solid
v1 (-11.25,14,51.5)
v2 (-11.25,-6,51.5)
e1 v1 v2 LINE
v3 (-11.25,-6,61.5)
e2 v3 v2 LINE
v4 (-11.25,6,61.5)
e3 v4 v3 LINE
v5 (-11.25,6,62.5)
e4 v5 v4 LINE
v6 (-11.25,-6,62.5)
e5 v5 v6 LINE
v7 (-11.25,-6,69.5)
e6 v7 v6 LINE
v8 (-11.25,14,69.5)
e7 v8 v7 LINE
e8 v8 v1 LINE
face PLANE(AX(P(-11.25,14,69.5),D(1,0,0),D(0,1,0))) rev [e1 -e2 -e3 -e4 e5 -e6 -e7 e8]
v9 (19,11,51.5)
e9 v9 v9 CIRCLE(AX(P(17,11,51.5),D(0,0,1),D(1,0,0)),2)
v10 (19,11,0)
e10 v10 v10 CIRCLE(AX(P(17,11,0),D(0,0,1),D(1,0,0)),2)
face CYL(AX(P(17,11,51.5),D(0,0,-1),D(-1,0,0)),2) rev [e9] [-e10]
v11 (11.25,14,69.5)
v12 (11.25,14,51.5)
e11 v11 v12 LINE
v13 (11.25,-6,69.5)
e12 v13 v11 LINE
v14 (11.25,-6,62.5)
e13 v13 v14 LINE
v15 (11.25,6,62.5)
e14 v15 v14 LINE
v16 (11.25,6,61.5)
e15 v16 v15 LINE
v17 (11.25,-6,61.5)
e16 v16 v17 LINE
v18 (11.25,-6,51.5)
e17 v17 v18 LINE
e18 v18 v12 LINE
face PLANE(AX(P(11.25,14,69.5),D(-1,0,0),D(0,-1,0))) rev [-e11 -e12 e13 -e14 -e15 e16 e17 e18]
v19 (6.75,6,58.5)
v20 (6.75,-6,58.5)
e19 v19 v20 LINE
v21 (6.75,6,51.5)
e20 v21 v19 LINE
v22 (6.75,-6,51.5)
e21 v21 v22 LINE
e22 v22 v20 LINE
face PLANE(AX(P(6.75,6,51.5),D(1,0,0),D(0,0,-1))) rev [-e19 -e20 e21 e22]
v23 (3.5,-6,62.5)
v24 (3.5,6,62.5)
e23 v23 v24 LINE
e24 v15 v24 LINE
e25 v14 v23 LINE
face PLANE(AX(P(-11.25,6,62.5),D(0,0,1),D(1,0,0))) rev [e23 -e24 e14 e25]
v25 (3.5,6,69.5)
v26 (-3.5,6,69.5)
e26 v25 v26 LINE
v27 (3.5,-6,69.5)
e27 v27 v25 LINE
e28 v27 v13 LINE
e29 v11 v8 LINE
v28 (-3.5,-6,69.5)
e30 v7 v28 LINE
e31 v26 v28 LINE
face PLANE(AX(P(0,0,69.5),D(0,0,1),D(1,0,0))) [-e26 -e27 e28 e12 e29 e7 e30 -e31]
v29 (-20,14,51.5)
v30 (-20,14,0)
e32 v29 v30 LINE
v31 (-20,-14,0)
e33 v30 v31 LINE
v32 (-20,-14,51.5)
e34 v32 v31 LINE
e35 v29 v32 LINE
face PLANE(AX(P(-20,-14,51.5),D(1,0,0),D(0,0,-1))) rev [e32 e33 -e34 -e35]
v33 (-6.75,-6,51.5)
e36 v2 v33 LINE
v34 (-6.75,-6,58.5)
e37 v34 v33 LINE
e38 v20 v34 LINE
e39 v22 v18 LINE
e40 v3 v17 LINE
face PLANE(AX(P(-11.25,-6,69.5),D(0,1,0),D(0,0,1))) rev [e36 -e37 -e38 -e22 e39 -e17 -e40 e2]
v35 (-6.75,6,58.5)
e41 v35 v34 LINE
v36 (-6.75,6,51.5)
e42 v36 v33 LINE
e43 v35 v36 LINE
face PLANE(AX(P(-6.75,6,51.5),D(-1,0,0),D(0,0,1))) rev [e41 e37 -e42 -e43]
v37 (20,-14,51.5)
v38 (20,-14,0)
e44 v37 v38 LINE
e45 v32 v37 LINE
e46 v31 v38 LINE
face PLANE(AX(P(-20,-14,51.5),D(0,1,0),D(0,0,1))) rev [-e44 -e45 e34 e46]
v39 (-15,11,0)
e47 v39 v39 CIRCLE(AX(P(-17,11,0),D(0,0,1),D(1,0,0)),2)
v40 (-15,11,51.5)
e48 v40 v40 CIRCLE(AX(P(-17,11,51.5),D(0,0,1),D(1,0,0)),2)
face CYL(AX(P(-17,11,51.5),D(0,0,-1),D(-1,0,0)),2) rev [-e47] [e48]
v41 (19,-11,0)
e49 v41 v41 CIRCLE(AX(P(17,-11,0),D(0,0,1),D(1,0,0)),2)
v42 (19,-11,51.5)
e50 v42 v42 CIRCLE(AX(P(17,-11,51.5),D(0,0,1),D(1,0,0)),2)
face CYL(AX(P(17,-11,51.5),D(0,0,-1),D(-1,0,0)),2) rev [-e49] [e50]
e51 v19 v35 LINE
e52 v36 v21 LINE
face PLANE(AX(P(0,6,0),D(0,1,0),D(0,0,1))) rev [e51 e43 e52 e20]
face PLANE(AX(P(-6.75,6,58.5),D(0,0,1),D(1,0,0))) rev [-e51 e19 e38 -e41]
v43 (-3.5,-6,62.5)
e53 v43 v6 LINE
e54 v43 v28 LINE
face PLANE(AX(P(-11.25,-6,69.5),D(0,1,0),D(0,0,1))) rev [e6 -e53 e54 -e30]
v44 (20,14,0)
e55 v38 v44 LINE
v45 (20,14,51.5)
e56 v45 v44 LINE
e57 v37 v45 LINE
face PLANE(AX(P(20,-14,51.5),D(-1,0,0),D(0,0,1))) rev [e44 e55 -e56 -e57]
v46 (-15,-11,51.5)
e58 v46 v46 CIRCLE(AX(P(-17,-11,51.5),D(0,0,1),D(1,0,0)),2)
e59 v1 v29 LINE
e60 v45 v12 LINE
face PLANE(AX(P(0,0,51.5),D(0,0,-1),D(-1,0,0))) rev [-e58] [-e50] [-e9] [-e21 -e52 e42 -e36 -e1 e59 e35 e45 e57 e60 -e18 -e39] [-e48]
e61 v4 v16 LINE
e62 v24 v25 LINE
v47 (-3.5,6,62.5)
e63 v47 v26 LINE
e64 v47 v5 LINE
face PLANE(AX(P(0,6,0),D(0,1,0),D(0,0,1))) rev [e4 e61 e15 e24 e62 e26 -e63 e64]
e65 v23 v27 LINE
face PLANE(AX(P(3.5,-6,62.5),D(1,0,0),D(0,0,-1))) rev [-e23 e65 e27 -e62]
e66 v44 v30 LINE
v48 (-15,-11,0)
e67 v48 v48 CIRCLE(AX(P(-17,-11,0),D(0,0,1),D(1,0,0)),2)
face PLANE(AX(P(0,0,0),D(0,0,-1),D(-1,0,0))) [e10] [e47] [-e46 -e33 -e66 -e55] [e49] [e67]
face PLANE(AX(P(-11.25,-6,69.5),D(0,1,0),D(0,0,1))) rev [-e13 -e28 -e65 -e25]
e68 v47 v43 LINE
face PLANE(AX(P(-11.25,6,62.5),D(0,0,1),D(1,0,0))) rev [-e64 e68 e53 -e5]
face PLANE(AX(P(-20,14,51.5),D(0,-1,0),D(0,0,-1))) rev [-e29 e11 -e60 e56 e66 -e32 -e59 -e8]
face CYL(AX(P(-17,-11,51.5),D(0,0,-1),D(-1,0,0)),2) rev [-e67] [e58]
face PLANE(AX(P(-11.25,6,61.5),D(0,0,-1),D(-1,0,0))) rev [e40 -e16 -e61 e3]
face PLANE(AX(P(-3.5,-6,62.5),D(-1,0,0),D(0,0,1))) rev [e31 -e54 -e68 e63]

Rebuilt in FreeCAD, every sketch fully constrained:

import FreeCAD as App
import Part
import Sketcher
from FreeCAD import Vector
Q = App.Units.Quantity


def add_polygon(sketch, points):
    """Adds a closed chain of lines whose ends are joined by coincident constraints."""
    first, n = sketch.GeometryCount, len(points)
    for a, b in zip(points, points[1:] + points[:1]):
        sketch.addGeometry(Part.LineSegment(App.Vector(*a, 0), App.Vector(*b, 0)), False)
    for i in range(n):
        sketch.addConstraint(Sketcher.Constraint("Coincident", first + i, 2, first + (i + 1) % n, 1))

doc = App.newDocument("Part")
params = doc.addObject("Spreadsheet::Sheet", "Params")
for row, (alias, value) in enumerate([
    ("sketch1_diameter", "4 mm"),
    ("sketch1_width", "40 mm"),
    ("sketch1_height", "28 mm"),
    ("pad1_length", "51.5 mm"),
    ("sketch2_height", "20 mm"),
    ("sketch2_width", "22.5 mm"),
    ("pad2_length", "18 mm"),
    ("sketch3_height", "7 mm"),
    ("sketch3_width", "13.5 mm"),
    ("pocket1_length", "12 mm"),
    ("sketch4_height", "1 mm"),
    ("sketch4_width", "22.5 mm"),
    ("pocket2_length", "12 mm"),
    ("sketch5_width", "7 mm"),
    ("sketch5_height", "12 mm"),
    ("pocket3_length", "7 mm"),
], start=1):
    params.set(f"A{row}", alias)
    params.set(f"B{row}", "=" + value)
    params.setAlias(f"B{row}", alias)

body = doc.addObject("PartDesign::Body", "Body")

# Sketch on XY plane
sketch1 = body.newObject("Sketcher::SketchObject", "Sketch")
sketch1.AttachmentSupport = (doc.getObject("XY_Plane"), [""])
sketch1.MapMode = "FlatFace"
add_polygon(sketch1, [(-20, 14), (-20, -14), (20, -14), (20, 14)])  # lines 0-3
sketch1.addGeometry(Part.Circle(Vector(-17, -11, 0), Vector(0, 0, 1), 2), False)  # 4
sketch1.addGeometry(Part.Circle(Vector(17, -11, 0), Vector(0, 0, 1), 2), False)  # 5
sketch1.addGeometry(Part.Circle(Vector(-17, 11, 0), Vector(0, 0, 1), 2), False)  # 6
sketch1.addGeometry(Part.Circle(Vector(17, 11, 0), Vector(0, 0, 1), 2), False)  # 7
sketch1.addConstraint(Sketcher.Constraint("Vertical", 0))
sketch1.addConstraint(Sketcher.Constraint("Horizontal", 1))
sketch1.addConstraint(Sketcher.Constraint("Vertical", 2))
sketch1.addConstraint(Sketcher.Constraint("Horizontal", 3))
sketch1.addConstraint(Sketcher.Constraint("Equal", 4, 5))
sketch1.addConstraint(Sketcher.Constraint("Equal", 5, 6))
sketch1.addConstraint(Sketcher.Constraint("Equal", 6, 7))
sketch1.addConstraint(Sketcher.Constraint("Symmetric", 5, 3, 6, 3, -1, 1))
sketch1.addConstraint(Sketcher.Constraint("Symmetric", 4, 3, 7, 3, -1, 1))
sketch1.addConstraint(Sketcher.Constraint("Symmetric", 0, 2, 2, 2, -1, 1))
sketch1.addConstraint(Sketcher.Constraint("Symmetric", 4, 3, 5, 3, -2))
sketch1.addConstraint(Sketcher.Constraint("Diameter", 4, Q("4 mm")))
sketch1.addConstraint(Sketcher.Constraint("DistanceX", 1, 1, 1, 2, Q("40 mm")))
sketch1.addConstraint(Sketcher.Constraint("DistanceY", 0, 2, 0, 1, Q("28 mm")))
sketch1.addConstraint(Sketcher.Constraint("DistanceX", 4, 3, -1, 1, Q("17 mm")))
sketch1.addConstraint(Sketcher.Constraint("DistanceY", 4, 3, -1, 1, Q("11 mm")))
sketch1.setExpression("Constraints[15]", "Params.sketch1_diameter")
sketch1.setExpression("Constraints[16]", "Params.sketch1_width")
sketch1.setExpression("Constraints[17]", "Params.sketch1_height")
pad1 = body.newObject("PartDesign::Pad", "Pad")
pad1.Profile = sketch1
pad1.setExpression("Length", "Params.pad1_length")

# Sketch on XY plane
sketch2 = body.newObject("Sketcher::SketchObject", "Sketch001")
sketch2.AttachmentSupport = (doc.getObject("XY_Plane"), [""])
sketch2.MapMode = "FlatFace"
sketch2.AttachmentOffset = App.Placement(Vector(0, 0, 51.5), App.Rotation())
add_polygon(sketch2, [(-11.25, 14), (-11.25, -6), (11.25, -6), (11.25, 14)])  # lines 0-3
sketch2.addConstraint(Sketcher.Constraint("Vertical", 0))
sketch2.addConstraint(Sketcher.Constraint("Horizontal", 1))
sketch2.addConstraint(Sketcher.Constraint("Vertical", 2))
sketch2.addConstraint(Sketcher.Constraint("Horizontal", 3))
sketch2.addConstraint(Sketcher.Constraint("DistanceY", 0, 2, 0, 1, Q("20 mm")))
sketch2.addConstraint(Sketcher.Constraint("DistanceX", 1, 1, 1, 2, Q("22.5 mm")))
sketch2.addConstraint(Sketcher.Constraint("DistanceY", 0, 2, -1, 1, Q("6 mm")))
sketch2.addConstraint(Sketcher.Constraint("DistanceX", 0, 2, -1, 1, Q("11.25 mm")))
sketch2.setExpression("Constraints[8]", "Params.sketch2_height")
sketch2.setExpression("Constraints[9]", "Params.sketch2_width")
pad2 = body.newObject("PartDesign::Pad", "Pad001")
pad2.Profile = sketch2
pad2.setExpression("Length", "Params.pad2_length")

# Sketch on XZ plane
sketch3 = body.newObject("Sketcher::SketchObject", "Sketch002")
sketch3.AttachmentSupport = (doc.getObject("XZ_Plane"), [""])
sketch3.MapMode = "FlatFace"
sketch3.AttachmentOffset = App.Placement(Vector(0, 0, 6), App.Rotation())
add_polygon(sketch3, [(-6.75, 58.5), (-6.75, 51.5), (6.75, 51.5), (6.75, 58.5)])  # lines 0-3
sketch3.addConstraint(Sketcher.Constraint("Vertical", 0))
sketch3.addConstraint(Sketcher.Constraint("Horizontal", 1))
sketch3.addConstraint(Sketcher.Constraint("Vertical", 2))
sketch3.addConstraint(Sketcher.Constraint("Horizontal", 3))
sketch3.addConstraint(Sketcher.Constraint("DistanceY", 0, 2, 0, 1, Q("7 mm")))
sketch3.addConstraint(Sketcher.Constraint("DistanceX", 1, 1, 1, 2, Q("13.5 mm")))
sketch3.addConstraint(Sketcher.Constraint("DistanceY", -1, 1, 0, 2, Q("51.5 mm")))
sketch3.addConstraint(Sketcher.Constraint("DistanceX", 0, 2, -1, 1, Q("6.75 mm")))
sketch3.setExpression("Constraints[8]", "Params.sketch3_height")
sketch3.setExpression("Constraints[9]", "Params.sketch3_width")
pocket1 = body.newObject("PartDesign::Pocket", "Pocket")
pocket1.Profile = sketch3
pocket1.setExpression("Length", "Params.pocket1_length")

# Sketch on XZ plane
sketch4 = body.newObject("Sketcher::SketchObject", "Sketch003")
sketch4.AttachmentSupport = (doc.getObject("XZ_Plane"), [""])
sketch4.MapMode = "FlatFace"
sketch4.AttachmentOffset = App.Placement(Vector(0, 0, 6), App.Rotation())
add_polygon(sketch4, [(-11.25, 62.5), (-11.25, 61.5), (11.25, 61.5), (11.25, 62.5)])  # lines 0-3
sketch4.addConstraint(Sketcher.Constraint("Vertical", 0))
sketch4.addConstraint(Sketcher.Constraint("Horizontal", 1))
sketch4.addConstraint(Sketcher.Constraint("Vertical", 2))
sketch4.addConstraint(Sketcher.Constraint("Horizontal", 3))
sketch4.addConstraint(Sketcher.Constraint("DistanceY", 0, 2, 0, 1, Q("1 mm")))
sketch4.addConstraint(Sketcher.Constraint("DistanceX", 1, 1, 1, 2, Q("22.5 mm")))
sketch4.addConstraint(Sketcher.Constraint("DistanceY", -1, 1, 0, 2, Q("61.5 mm")))
sketch4.addConstraint(Sketcher.Constraint("DistanceX", 0, 2, -1, 1, Q("11.25 mm")))
sketch4.setExpression("Constraints[8]", "Params.sketch4_height")
sketch4.setExpression("Constraints[9]", "Params.sketch4_width")
pocket2 = body.newObject("PartDesign::Pocket", "Pocket001")
pocket2.Profile = sketch4
pocket2.setExpression("Length", "Params.pocket2_length")

# Sketch on XY plane
sketch5 = body.newObject("Sketcher::SketchObject", "Sketch004")
sketch5.AttachmentSupport = (doc.getObject("XY_Plane"), [""])
sketch5.MapMode = "FlatFace"
sketch5.AttachmentOffset = App.Placement(Vector(0, 0, 69.5), App.Rotation())
add_polygon(sketch5, [(-3.5, 6), (-3.5, -6), (3.5, -6), (3.5, 6)])  # lines 0-3
sketch5.addConstraint(Sketcher.Constraint("Vertical", 0))
sketch5.addConstraint(Sketcher.Constraint("Horizontal", 1))
sketch5.addConstraint(Sketcher.Constraint("Vertical", 2))
sketch5.addConstraint(Sketcher.Constraint("Horizontal", 3))
sketch5.addConstraint(Sketcher.Constraint("Symmetric", 0, 2, 2, 2, -1, 1))
sketch5.addConstraint(Sketcher.Constraint("DistanceX", 1, 1, 1, 2, Q("7 mm")))
sketch5.addConstraint(Sketcher.Constraint("DistanceY", 0, 2, 0, 1, Q("12 mm")))
sketch5.setExpression("Constraints[9]", "Params.sketch5_width")
sketch5.setExpression("Constraints[10]", "Params.sketch5_height")
pocket3 = body.newObject("PartDesign::Pocket", "Pocket002")
pocket3.Profile = sketch5
pocket3.setExpression("Length", "Params.pocket3_length")

doc.recompute()
